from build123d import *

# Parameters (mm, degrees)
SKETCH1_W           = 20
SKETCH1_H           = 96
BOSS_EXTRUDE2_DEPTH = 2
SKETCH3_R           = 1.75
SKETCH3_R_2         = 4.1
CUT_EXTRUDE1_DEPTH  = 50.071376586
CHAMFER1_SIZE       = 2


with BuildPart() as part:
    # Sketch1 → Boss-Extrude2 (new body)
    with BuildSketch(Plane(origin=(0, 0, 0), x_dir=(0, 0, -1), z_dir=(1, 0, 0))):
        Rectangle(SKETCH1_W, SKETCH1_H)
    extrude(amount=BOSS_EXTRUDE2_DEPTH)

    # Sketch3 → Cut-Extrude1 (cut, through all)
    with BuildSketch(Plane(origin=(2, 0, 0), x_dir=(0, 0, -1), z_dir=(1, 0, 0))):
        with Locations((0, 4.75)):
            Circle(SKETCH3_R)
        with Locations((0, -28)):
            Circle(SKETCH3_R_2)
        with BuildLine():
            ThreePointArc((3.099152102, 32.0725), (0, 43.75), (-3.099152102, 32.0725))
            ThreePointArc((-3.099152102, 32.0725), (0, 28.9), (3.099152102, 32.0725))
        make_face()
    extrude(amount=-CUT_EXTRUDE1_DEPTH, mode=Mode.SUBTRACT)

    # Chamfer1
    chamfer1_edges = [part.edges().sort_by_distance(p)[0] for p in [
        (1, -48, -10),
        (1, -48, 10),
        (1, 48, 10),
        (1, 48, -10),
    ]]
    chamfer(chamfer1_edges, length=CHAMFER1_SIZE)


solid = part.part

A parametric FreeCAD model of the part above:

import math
import FreeCAD as App
import Part
import Sketcher
from FreeCAD import Vector
Q = App.Units.Quantity


def edges_at(feature, points):
    """Names of the edges that pass closest to the given points."""
    edges = feature.Shape.Edges
    near = lambda p: min(range(len(edges)), key=lambda i: edges[i].distToShape(Part.Vertex(*p))[0])
    return sorted({f"Edge{near(p) + 1}" for p in points})

doc = App.newDocument("Part")
body = doc.addObject("PartDesign::Body", "Body")

sketch1 = body.newObject("Sketcher::SketchObject", "Sketch")
sketch1.AttachmentSupport = (doc.getObject("YZ_Plane"), [""])
sketch1.MapMode = "FlatFace"
sketch1.addGeometry([
    Part.LineSegment(Vector(48, 10, 0), Vector(-48, 10, 0)),
    Part.LineSegment(Vector(-48, 10, 0), Vector(-48, -10, 0)),
    Part.LineSegment(Vector(-48, -10, 0), Vector(48, -10, 0)),
    Part.LineSegment(Vector(48, -10, 0), Vector(48, 10, 0)),
], False)
sketch1.addConstraint([
    Sketcher.Constraint("Coincident", 0, 2, 1, 1),
    Sketcher.Constraint("Coincident", 1, 2, 2, 1),
    Sketcher.Constraint("Coincident", 2, 2, 3, 1),
    Sketcher.Constraint("Coincident", 3, 2, 0, 1),
    Sketcher.Constraint("Horizontal", 0),
    Sketcher.Constraint("Vertical", 1),
    Sketcher.Constraint("Horizontal", 2),
    Sketcher.Constraint("Vertical", 3),
    Sketcher.Constraint("Symmetric", 0, 2, 2, 2, -1, 1),
    Sketcher.Constraint("DistanceX", 0, 2, 0, 1, Q("96 mm")),
    Sketcher.Constraint("DistanceY", 1, 2, 1, 1, Q("20 mm")),
])
pad1 = body.newObject("PartDesign::Pad", "Pad")
pad1.Profile = sketch1
pad1.Length = 2

sketch2 = body.newObject("Sketcher::SketchObject", "Sketch001")
sketch2.AttachmentSupport = (doc.getObject("YZ_Plane"), [""])
sketch2.MapMode = "FlatFace"
sketch2.AttachmentOffset = App.Placement(Vector(0, 0, 2), App.Rotation())
sketch2.addGeometry([
    Part.Circle(Vector(4.8, 0, 0), Vector(0, 0, 1), 1.8),
    Part.Circle(Vector(-28, 0, 0), Vector(0, 0, 1), 4.1),
    Part.ArcOfCircle(Part.Circle(Vector(37.5, 0, 0), Vector(0, 0, 1), 6.2), math.radians(-150), math.radians(150)),
    Part.ArcOfCircle(Part.Circle(Vector(32, 0, 0), Vector(0, 0, 1), 3.1), math.radians(89), math.radians(271)),
], False)
sketch2.addConstraint([
    Sketcher.Constraint("Coincident", 2, 1, 3, 2),
    Sketcher.Constraint("Coincident", 3, 1, 2, 2),
    Sketcher.Constraint("Symmetric", 2, 1, 3, 1, -1),
    Sketcher.Constraint("PointOnObject", 0, 3, -1),
    Sketcher.Constraint("PointOnObject", 1, 3, -1),
    Sketcher.Constraint("Diameter", 0, Q("3.5 mm")),
    Sketcher.Constraint("Diameter", 1, Q("8.2 mm")),
    Sketcher.Constraint("Radius", 3, Q("3.1 mm")),
    Sketcher.Constraint("Radius", 2, Q("6.25 mm")),
    Sketcher.Constraint("DistanceX", 1, 3, -1, 1, Q("28 mm")),
    Sketcher.Constraint("DistanceX", -1, 1, 3, 3, Q("32 mm")),
    Sketcher.Constraint("DistanceX", -1, 1, 2, 3, Q("37.5 mm")),
    Sketcher.Constraint("DistanceX", -1, 1, 0, 3, Q("4.75 mm")),
])
pocket1 = body.newObject("PartDesign::Pocket", "Pocket")
pocket1.Profile = sketch2
pocket1.Type = "ThroughAll"
doc.recompute()

chamfer = body.newObject("PartDesign::Chamfer", "Chamfer")
chamfer.Base = (pocket1, edges_at(pocket1, [
    (1, -48, -10),
    (1, -48, 10),
    (1, 48, 10),
    (1, 48, -10),
]))
chamfer.Size = 2

doc.recompute()
